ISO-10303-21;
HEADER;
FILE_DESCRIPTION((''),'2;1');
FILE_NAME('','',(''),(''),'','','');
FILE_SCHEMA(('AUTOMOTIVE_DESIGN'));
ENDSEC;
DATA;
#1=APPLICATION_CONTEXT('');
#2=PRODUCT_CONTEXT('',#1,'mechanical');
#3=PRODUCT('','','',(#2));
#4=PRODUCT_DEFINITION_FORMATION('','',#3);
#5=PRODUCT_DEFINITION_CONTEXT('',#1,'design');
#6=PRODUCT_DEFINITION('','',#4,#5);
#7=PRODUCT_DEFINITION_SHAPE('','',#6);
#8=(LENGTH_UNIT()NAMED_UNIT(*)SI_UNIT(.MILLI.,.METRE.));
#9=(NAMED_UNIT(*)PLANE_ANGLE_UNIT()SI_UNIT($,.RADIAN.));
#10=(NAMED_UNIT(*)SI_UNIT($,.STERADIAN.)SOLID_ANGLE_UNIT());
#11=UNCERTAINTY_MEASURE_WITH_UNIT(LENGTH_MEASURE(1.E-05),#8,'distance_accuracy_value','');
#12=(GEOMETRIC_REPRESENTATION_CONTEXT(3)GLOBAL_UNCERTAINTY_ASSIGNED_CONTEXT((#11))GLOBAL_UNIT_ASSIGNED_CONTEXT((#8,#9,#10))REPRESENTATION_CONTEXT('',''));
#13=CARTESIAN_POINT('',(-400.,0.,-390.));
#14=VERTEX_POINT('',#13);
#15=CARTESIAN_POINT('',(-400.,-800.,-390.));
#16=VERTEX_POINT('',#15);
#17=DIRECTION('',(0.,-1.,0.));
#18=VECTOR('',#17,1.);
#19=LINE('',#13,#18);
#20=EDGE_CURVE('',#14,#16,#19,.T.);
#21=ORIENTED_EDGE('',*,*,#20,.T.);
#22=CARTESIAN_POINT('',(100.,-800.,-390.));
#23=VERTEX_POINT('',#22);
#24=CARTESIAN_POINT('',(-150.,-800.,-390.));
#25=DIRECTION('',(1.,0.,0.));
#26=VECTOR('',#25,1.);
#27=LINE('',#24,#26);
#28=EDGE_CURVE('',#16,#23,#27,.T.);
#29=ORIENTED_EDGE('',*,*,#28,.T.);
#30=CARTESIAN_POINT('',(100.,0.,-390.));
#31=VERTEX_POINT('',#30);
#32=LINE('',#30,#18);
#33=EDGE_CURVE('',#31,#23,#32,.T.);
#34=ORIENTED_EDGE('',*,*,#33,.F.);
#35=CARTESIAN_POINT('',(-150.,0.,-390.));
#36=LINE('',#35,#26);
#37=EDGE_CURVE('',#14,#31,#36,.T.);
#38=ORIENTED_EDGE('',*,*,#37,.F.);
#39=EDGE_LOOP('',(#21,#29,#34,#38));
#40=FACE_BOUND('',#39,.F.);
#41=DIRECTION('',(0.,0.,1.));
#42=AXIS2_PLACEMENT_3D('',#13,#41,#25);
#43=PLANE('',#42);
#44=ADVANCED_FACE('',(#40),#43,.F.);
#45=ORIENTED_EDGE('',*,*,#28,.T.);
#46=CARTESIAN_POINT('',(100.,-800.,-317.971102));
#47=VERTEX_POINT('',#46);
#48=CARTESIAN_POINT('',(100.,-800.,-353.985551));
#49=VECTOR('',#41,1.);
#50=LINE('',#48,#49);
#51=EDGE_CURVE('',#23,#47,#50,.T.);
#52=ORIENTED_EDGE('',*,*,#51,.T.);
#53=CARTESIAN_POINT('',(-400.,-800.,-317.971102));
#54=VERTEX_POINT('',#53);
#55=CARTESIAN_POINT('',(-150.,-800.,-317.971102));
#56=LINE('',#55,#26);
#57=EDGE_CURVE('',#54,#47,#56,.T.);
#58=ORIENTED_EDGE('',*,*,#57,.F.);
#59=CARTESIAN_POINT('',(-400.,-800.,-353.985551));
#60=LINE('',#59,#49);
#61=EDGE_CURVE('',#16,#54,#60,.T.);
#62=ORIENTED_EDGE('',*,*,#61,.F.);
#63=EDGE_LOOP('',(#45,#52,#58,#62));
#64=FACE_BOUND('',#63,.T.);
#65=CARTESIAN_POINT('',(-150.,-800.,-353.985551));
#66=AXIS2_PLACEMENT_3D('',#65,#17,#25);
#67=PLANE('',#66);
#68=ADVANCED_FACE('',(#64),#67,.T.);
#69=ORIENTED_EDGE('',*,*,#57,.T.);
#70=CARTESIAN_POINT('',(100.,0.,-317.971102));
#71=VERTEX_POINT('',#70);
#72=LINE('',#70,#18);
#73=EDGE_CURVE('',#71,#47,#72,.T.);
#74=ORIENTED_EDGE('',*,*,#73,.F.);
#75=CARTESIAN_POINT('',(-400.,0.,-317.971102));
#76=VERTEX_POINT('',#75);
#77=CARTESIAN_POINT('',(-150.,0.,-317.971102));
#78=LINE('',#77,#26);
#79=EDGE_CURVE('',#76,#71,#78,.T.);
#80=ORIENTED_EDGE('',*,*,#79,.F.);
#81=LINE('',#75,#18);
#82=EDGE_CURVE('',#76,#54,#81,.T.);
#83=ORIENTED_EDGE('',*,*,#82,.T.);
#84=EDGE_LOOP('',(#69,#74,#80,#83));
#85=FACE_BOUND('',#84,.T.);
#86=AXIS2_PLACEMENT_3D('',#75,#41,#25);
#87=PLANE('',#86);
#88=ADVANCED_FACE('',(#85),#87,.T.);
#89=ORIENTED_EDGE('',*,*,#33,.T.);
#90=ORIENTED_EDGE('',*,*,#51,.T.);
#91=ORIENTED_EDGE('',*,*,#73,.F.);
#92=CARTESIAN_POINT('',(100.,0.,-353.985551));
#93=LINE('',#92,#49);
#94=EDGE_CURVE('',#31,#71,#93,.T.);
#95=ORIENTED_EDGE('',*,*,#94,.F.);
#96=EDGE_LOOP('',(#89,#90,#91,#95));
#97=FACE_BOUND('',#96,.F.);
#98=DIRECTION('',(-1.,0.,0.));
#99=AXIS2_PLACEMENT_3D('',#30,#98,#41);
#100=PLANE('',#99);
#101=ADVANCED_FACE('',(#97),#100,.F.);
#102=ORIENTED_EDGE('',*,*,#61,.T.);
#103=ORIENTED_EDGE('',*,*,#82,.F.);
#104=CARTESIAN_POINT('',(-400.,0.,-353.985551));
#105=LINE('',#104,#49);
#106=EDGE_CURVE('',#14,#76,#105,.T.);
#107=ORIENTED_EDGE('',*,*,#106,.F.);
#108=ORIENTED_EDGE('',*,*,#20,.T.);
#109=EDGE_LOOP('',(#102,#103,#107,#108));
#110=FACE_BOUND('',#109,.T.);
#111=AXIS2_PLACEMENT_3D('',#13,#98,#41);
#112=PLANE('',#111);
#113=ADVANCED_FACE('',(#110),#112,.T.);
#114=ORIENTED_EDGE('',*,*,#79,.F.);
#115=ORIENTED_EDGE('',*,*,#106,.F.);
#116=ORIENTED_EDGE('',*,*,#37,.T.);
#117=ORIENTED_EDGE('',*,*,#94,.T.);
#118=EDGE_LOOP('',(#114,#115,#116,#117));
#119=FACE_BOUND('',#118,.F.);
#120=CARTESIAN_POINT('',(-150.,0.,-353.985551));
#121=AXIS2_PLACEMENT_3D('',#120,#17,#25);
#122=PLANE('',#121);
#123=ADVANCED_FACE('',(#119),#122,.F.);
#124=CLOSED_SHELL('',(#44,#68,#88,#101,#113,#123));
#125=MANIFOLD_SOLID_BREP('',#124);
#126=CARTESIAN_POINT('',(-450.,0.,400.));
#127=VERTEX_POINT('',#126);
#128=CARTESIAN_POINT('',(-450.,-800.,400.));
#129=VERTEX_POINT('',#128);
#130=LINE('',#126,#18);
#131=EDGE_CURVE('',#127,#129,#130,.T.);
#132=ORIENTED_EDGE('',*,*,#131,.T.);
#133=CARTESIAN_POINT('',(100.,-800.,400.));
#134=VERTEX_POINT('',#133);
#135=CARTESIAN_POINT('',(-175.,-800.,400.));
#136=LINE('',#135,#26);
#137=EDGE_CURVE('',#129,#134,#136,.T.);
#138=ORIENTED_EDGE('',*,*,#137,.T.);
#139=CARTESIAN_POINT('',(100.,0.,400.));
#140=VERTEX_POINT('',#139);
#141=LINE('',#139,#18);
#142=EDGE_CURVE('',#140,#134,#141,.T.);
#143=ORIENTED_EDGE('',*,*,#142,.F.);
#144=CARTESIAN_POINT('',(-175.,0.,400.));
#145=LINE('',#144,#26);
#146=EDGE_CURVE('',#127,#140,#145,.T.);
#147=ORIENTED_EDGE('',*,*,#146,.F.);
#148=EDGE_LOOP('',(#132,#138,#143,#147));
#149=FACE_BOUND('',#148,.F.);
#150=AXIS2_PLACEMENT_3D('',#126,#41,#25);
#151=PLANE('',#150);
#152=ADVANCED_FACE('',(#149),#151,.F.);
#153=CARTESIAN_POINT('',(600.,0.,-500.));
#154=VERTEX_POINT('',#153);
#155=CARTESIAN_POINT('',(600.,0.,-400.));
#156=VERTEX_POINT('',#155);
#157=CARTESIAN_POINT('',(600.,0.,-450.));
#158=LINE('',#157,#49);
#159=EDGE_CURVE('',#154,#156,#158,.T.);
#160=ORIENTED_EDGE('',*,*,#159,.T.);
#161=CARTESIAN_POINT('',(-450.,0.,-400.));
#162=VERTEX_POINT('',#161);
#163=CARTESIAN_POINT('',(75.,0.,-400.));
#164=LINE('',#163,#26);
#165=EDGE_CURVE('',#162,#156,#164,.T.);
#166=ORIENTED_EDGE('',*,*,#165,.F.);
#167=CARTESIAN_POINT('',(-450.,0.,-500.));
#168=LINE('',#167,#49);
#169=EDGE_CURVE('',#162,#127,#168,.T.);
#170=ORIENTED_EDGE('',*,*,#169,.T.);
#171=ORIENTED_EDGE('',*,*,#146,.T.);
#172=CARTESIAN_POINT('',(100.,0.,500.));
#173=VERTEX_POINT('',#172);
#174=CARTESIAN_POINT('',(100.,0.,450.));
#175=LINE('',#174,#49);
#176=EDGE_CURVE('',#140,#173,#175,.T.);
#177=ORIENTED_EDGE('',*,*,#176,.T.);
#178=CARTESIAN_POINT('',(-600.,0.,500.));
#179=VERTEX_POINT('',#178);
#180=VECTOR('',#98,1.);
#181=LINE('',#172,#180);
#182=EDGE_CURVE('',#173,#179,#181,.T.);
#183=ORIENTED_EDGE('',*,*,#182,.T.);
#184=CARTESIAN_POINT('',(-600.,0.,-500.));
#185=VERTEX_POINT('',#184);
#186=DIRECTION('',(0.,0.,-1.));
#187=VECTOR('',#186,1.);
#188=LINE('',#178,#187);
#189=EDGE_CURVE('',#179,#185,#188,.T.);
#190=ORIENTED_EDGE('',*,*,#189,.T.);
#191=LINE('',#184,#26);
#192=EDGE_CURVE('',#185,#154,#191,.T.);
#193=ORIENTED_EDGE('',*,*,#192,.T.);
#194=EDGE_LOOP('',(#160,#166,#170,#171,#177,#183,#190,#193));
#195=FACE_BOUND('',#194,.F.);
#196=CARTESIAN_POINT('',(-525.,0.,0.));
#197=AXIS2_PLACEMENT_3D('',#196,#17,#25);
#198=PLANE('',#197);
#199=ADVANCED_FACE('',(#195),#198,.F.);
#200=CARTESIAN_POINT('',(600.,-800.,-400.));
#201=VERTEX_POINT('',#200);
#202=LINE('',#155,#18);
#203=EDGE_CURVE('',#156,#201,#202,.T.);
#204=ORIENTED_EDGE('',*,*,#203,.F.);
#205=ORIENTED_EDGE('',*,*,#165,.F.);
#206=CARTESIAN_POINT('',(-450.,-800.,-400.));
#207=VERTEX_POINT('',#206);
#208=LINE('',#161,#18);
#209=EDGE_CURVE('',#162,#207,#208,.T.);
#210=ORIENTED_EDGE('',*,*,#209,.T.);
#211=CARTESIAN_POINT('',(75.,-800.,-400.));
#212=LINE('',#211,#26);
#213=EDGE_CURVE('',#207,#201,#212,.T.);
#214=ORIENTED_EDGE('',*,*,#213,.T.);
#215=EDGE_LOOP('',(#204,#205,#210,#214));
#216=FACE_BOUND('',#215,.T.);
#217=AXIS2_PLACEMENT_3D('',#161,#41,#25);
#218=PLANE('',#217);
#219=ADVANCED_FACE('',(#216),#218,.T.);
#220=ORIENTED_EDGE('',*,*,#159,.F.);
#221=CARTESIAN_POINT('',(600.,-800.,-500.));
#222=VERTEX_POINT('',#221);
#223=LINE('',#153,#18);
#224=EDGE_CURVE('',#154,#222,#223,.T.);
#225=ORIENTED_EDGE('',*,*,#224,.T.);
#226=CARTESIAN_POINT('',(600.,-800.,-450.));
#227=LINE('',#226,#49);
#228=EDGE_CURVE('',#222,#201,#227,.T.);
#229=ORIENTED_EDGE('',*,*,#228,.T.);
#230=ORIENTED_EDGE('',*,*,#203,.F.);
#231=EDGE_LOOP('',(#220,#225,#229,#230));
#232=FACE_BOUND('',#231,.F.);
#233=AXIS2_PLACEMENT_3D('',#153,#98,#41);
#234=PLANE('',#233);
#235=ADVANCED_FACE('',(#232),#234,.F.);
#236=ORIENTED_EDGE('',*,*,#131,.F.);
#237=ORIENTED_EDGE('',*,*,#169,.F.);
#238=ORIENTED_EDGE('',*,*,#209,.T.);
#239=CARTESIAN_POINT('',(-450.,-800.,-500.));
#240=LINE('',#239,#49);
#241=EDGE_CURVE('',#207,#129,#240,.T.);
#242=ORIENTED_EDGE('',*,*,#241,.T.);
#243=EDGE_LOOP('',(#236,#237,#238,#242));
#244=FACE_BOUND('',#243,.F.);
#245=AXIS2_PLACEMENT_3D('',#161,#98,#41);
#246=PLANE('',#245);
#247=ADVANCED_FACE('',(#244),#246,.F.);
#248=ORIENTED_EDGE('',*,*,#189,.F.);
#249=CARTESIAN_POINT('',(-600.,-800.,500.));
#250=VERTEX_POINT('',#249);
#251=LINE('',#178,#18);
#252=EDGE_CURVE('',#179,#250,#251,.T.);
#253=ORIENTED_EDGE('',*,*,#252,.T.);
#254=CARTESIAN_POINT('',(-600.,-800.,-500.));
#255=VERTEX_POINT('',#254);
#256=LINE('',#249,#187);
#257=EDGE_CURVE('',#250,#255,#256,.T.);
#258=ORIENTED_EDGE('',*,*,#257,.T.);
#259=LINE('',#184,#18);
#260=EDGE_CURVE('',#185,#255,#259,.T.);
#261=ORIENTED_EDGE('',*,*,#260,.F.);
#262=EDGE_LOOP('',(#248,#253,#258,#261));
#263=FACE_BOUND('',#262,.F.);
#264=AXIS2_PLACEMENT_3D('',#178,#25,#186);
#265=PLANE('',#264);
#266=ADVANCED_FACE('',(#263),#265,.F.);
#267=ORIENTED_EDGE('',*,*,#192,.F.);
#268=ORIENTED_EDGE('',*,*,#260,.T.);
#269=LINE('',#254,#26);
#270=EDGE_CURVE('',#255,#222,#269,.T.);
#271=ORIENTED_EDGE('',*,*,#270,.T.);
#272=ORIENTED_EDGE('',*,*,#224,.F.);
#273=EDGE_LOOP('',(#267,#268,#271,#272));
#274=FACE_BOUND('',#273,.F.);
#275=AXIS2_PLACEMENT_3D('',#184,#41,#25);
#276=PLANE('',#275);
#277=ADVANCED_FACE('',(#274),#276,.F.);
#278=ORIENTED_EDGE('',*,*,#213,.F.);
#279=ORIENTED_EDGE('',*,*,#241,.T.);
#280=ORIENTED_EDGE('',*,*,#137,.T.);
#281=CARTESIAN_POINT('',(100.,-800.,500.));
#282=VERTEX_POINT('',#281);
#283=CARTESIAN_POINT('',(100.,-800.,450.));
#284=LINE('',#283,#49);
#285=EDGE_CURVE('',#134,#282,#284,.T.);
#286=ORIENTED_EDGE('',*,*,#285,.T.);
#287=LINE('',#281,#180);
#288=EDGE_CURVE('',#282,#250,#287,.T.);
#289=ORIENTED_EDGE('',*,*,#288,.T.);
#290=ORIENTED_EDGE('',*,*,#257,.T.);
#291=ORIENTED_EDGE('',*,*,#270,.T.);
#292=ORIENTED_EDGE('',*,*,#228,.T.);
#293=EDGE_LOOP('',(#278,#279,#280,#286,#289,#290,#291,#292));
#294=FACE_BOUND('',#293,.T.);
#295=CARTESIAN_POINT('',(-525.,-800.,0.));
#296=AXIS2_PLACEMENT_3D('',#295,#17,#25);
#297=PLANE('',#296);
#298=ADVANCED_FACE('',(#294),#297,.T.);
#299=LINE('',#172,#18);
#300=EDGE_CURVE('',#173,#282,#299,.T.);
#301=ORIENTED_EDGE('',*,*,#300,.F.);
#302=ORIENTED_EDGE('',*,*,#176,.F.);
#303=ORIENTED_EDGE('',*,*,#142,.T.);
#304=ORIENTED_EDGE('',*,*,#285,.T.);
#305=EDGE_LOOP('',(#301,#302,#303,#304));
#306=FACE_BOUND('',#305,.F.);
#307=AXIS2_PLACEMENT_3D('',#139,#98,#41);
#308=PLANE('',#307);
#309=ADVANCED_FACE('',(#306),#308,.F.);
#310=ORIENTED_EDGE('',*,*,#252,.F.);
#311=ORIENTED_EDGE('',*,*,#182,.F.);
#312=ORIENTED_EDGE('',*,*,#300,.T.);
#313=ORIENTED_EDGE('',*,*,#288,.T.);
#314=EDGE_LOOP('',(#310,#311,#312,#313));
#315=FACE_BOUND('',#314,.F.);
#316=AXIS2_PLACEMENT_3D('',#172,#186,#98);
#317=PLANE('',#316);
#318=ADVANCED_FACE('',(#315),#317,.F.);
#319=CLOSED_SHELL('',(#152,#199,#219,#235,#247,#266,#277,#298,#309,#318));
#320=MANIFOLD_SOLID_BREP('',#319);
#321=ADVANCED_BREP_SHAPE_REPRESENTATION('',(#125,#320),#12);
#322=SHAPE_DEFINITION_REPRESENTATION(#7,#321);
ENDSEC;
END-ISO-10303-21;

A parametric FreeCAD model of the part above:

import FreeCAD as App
import Part
import Sketcher
from FreeCAD import Vector


def add_polygon(sketch, points):
    """Adds a closed chain of lines whose ends are joined by coincident constraints."""
    first, n = sketch.GeometryCount, len(points)
    for a, b in zip(points, points[1:] + points[:1]):
        sketch.addGeometry(Part.LineSegment(App.Vector(*a, 0), App.Vector(*b, 0)), False)
    for i in range(n):
        sketch.addConstraint(Sketcher.Constraint("Coincident", first + i, 2, first + (i + 1) % n, 1))

doc = App.newDocument("Part")
params = doc.addObject("Spreadsheet::Sheet", "Params")
for row, (alias, value) in enumerate([
    ("sketch1_width", "1200 mm"),
    ("sketch1_width2", "1050 mm"),
    ("sketch1_width3", "550 mm"),
    ("sketch1_width4", "500 mm"),
    ("sketch1_height", "1000 mm"),
    ("pad1_length", "800 mm"),
], start=1):
    params.set(f"A{row}", alias)
    params.set(f"B{row}", "=" + value)
    params.setAlias(f"B{row}", alias)

body = doc.addObject("PartDesign::Body", "Body")
body.AllowCompound = True

# Sketch on XZ plane
sketch1 = body.newObject("Sketcher::SketchObject", "Sketch")
sketch1.AttachmentSupport = (doc.getObject("XZ_Plane"), [""])
sketch1.MapMode = "FlatFace"
add_polygon(sketch1, [(-600, 500), (-600, -500), (600, -500), (600, -400), (-450, -400), (-450, 400), (100, 400), (100, 500)])  # lines 0-7
add_polygon(sketch1, [(-400, -317.971102), (-400, -390), (100, -390), (100, -317.971102)])  # lines 8-11
sketch1.addConstraint([
    Sketcher.Constraint("Vertical", 0),
    Sketcher.Constraint("Horizontal", 1),
    Sketcher.Constraint("Vertical", 2),
    Sketcher.Constraint("Horizontal", 3),
    Sketcher.Constraint("Vertical", 4),
    Sketcher.Constraint("Horizontal", 5),
    Sketcher.Constraint("Vertical", 6),
    Sketcher.Constraint("Horizontal", 7),
    Sketcher.Constraint("Vertical", 8),
    Sketcher.Constraint("Horizontal", 9),
    Sketcher.Constraint("Vertical", 10),
    Sketcher.Constraint("Horizontal", 11),
    Sketcher.Constraint("Symmetric", 1, 2, 7, 2, -1, 1),
    Sketcher.Constraint("Vertical", 6, 2, 9, 2),
    Sketcher.Constraint("Equal", 2, 6),
    Sketcher.Constraint("DistanceX", 1, 1, 1, 2, 1200.0),
    Sketcher.Constraint("DistanceX", 3, 2, 3, 1, 1050.0),
    Sketcher.Constraint("DistanceX", 5, 1, 5, 2, 550.0),
    Sketcher.Constraint("DistanceX", 9, 1, 9, 2, 500.0),
    Sketcher.Constraint("DistanceY", 0, 2, 0, 1, 1000.0),
    Sketcher.Constraint("DistanceY", 2, 1, 2, 2, 100.0),
    Sketcher.Constraint("DistanceY", 8, 2, -1, 1, 390.0),
    Sketcher.Constraint("DistanceY", 8, 2, 8, 1, 72.028898),
])
sketch1.setExpression("Constraints[27]", "Params.sketch1_width")
sketch1.setExpression("Constraints[28]", "Params.sketch1_width2")
sketch1.setExpression("Constraints[29]", "Params.sketch1_width3")
sketch1.setExpression("Constraints[30]", "Params.sketch1_width4")
sketch1.setExpression("Constraints[31]", "Params.sketch1_height")
pad1 = body.newObject("PartDesign::Pad", "Pad")
pad1.Profile = sketch1
pad1.setExpression("Length", "Params.pad1_length")

doc.recompute()
